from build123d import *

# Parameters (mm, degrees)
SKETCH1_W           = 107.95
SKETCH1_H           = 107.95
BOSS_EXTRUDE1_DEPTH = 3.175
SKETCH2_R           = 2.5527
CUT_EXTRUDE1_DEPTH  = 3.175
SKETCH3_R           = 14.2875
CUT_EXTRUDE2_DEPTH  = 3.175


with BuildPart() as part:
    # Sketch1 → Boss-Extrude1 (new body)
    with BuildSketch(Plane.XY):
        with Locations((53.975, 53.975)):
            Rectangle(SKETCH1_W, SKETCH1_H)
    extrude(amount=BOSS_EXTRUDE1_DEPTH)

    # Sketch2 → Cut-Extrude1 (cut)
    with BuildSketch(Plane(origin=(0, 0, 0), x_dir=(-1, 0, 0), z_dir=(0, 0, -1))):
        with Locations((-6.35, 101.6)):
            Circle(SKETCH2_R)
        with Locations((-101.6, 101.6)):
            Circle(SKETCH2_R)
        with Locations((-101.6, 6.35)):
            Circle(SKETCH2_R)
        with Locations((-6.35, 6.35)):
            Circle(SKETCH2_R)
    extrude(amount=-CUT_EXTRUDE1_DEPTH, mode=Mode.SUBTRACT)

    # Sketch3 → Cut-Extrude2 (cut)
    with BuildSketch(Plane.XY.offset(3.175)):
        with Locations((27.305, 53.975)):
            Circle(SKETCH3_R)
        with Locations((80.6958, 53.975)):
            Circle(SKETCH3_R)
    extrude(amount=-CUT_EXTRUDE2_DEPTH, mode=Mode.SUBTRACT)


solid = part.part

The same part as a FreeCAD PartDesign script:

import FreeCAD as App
import Part
import Sketcher

V = App.Vector
Q = App.Units.Quantity

doc = App.newDocument("Part")
body = doc.addObject("PartDesign::Body", "Body")

sketch1 = body.newObject("Sketcher::SketchObject", "Sketch")
sketch1.AttachmentSupport = (doc.getObject("XY_Plane"), [""])
sketch1.MapMode = "FlatFace"
sketch1.addGeometry([
    Part.LineSegment(V(0, 107.95, 0), V(0, 0, 0)),
    Part.LineSegment(V(0, 0, 0), V(107.95, 0, 0)),
    Part.LineSegment(V(107.95, 0, 0), V(107.95, 107.95, 0)),
    Part.LineSegment(V(107.95, 107.95, 0), V(0, 107.95, 0)),
], False)
sketch1.addConstraint([
    Sketcher.Constraint("Coincident", 0, 2, 1, 1),
    Sketcher.Constraint("Coincident", 1, 2, 2, 1),
    Sketcher.Constraint("Coincident", 2, 2, 3, 1),
    Sketcher.Constraint("Coincident", 3, 2, 0, 1),
    Sketcher.Constraint("Vertical", 0),
    Sketcher.Constraint("Horizontal", 1),
    Sketcher.Constraint("Vertical", 2),
    Sketcher.Constraint("Horizontal", 3),
    Sketcher.Constraint("Coincident", 0, 2, -1, 1),
    Sketcher.Constraint("Equal", 3, 0),
    Sketcher.Constraint("DistanceX", 1, 1, 1, 2, Q("4.25 in")),
])
pad1 = body.newObject("PartDesign::Pad", "Pad")
pad1.Profile = sketch1
pad1.Length = Q("0.125 in")

sketch2 = body.newObject("Sketcher::SketchObject", "Sketch001")
sketch2.AttachmentSupport = (doc.getObject("XY_Plane"), [""])
sketch2.MapMode = "FlatFace"
sketch2.addGeometry([
    Part.Circle(V(6.35, 101.6, 0), V(0, 0, 1), 2.5527),
    Part.Circle(V(101.6, 101.6, 0), V(0, 0, 1), 2.5527),
    Part.Circle(V(101.6, 6.35, 0), V(0, 0, 1), 2.5527),
    Part.Circle(V(6.35, 6.35, 0), V(0, 0, 1), 2.5527),
], False)
sketch2.addConstraint([
    Sketcher.Constraint("Equal", 0, 1),
    Sketcher.Constraint("Equal", 1, 2),
    Sketcher.Constraint("Equal", 2, 3),
    Sketcher.Constraint("Horizontal", 0, 3, 1, 3),
    Sketcher.Constraint("Horizontal", 2, 3, 3, 3),
    Sketcher.Constraint("Vertical", 1, 3, 2, 3),
    Sketcher.Constraint("Vertical", 0, 3, 3, 3),
    Sketcher.Constraint("Diameter", 0, Q("0.201 in")),
    Sketcher.Constraint("DistanceY", -1, 1, 0, 3, Q("4 in")),
    Sketcher.Constraint("DistanceX", -1, 1, 1, 3, Q("4 in")),
    Sketcher.Constraint("DistanceX", -1, 1, 0, 3, Q("0.25 in")),
    Sketcher.Constraint("DistanceY", -1, 1, 2, 3, Q("0.25 in")),
])
pocket1 = body.newObject("PartDesign::Pocket", "Pocket")
pocket1.Profile = sketch2
pocket1.Length = Q("0.125 in")
pocket1.Reversed = True

sketch3 = body.newObject("Sketcher::SketchObject", "Sketch002")
sketch3.AttachmentSupport = (doc.getObject("XY_Plane"), [""])
sketch3.MapMode = "FlatFace"
sketch3.AttachmentOffset = App.Placement(V(0, 0, 0.125 * 25.4), App.Rotation())
sketch3.addGeometry([
    Part.Circle(V(27.305, 53.975, 0), V(0, 0, 1), 14.2875),
    Part.Circle(V(80.6958, 53.975, 0), V(0, 0, 1), 14.2875),
], False)
sketch3.addConstraint([
    Sketcher.Constraint("Equal", 0, 1),
    Sketcher.Constraint("Horizontal", 0, 3, 1, 3),
    Sketcher.Constraint("Diameter", 0, Q("1.125 in")),
    Sketcher.Constraint("DistanceX", -1, 1, 0, 3, Q("1.075 in")),
    Sketcher.Constraint("DistanceY", -1, 1, 0, 3, Q("2.125 in")),
    Sketcher.Constraint("DistanceX", -1, 1, 1, 3, Q("3.177 in")),
])
pocket2 = body.newObject("PartDesign::Pocket", "Pocket001")
pocket2.Profile = sketch3
pocket2.Length = Q("0.125 in")

doc.recompute()
